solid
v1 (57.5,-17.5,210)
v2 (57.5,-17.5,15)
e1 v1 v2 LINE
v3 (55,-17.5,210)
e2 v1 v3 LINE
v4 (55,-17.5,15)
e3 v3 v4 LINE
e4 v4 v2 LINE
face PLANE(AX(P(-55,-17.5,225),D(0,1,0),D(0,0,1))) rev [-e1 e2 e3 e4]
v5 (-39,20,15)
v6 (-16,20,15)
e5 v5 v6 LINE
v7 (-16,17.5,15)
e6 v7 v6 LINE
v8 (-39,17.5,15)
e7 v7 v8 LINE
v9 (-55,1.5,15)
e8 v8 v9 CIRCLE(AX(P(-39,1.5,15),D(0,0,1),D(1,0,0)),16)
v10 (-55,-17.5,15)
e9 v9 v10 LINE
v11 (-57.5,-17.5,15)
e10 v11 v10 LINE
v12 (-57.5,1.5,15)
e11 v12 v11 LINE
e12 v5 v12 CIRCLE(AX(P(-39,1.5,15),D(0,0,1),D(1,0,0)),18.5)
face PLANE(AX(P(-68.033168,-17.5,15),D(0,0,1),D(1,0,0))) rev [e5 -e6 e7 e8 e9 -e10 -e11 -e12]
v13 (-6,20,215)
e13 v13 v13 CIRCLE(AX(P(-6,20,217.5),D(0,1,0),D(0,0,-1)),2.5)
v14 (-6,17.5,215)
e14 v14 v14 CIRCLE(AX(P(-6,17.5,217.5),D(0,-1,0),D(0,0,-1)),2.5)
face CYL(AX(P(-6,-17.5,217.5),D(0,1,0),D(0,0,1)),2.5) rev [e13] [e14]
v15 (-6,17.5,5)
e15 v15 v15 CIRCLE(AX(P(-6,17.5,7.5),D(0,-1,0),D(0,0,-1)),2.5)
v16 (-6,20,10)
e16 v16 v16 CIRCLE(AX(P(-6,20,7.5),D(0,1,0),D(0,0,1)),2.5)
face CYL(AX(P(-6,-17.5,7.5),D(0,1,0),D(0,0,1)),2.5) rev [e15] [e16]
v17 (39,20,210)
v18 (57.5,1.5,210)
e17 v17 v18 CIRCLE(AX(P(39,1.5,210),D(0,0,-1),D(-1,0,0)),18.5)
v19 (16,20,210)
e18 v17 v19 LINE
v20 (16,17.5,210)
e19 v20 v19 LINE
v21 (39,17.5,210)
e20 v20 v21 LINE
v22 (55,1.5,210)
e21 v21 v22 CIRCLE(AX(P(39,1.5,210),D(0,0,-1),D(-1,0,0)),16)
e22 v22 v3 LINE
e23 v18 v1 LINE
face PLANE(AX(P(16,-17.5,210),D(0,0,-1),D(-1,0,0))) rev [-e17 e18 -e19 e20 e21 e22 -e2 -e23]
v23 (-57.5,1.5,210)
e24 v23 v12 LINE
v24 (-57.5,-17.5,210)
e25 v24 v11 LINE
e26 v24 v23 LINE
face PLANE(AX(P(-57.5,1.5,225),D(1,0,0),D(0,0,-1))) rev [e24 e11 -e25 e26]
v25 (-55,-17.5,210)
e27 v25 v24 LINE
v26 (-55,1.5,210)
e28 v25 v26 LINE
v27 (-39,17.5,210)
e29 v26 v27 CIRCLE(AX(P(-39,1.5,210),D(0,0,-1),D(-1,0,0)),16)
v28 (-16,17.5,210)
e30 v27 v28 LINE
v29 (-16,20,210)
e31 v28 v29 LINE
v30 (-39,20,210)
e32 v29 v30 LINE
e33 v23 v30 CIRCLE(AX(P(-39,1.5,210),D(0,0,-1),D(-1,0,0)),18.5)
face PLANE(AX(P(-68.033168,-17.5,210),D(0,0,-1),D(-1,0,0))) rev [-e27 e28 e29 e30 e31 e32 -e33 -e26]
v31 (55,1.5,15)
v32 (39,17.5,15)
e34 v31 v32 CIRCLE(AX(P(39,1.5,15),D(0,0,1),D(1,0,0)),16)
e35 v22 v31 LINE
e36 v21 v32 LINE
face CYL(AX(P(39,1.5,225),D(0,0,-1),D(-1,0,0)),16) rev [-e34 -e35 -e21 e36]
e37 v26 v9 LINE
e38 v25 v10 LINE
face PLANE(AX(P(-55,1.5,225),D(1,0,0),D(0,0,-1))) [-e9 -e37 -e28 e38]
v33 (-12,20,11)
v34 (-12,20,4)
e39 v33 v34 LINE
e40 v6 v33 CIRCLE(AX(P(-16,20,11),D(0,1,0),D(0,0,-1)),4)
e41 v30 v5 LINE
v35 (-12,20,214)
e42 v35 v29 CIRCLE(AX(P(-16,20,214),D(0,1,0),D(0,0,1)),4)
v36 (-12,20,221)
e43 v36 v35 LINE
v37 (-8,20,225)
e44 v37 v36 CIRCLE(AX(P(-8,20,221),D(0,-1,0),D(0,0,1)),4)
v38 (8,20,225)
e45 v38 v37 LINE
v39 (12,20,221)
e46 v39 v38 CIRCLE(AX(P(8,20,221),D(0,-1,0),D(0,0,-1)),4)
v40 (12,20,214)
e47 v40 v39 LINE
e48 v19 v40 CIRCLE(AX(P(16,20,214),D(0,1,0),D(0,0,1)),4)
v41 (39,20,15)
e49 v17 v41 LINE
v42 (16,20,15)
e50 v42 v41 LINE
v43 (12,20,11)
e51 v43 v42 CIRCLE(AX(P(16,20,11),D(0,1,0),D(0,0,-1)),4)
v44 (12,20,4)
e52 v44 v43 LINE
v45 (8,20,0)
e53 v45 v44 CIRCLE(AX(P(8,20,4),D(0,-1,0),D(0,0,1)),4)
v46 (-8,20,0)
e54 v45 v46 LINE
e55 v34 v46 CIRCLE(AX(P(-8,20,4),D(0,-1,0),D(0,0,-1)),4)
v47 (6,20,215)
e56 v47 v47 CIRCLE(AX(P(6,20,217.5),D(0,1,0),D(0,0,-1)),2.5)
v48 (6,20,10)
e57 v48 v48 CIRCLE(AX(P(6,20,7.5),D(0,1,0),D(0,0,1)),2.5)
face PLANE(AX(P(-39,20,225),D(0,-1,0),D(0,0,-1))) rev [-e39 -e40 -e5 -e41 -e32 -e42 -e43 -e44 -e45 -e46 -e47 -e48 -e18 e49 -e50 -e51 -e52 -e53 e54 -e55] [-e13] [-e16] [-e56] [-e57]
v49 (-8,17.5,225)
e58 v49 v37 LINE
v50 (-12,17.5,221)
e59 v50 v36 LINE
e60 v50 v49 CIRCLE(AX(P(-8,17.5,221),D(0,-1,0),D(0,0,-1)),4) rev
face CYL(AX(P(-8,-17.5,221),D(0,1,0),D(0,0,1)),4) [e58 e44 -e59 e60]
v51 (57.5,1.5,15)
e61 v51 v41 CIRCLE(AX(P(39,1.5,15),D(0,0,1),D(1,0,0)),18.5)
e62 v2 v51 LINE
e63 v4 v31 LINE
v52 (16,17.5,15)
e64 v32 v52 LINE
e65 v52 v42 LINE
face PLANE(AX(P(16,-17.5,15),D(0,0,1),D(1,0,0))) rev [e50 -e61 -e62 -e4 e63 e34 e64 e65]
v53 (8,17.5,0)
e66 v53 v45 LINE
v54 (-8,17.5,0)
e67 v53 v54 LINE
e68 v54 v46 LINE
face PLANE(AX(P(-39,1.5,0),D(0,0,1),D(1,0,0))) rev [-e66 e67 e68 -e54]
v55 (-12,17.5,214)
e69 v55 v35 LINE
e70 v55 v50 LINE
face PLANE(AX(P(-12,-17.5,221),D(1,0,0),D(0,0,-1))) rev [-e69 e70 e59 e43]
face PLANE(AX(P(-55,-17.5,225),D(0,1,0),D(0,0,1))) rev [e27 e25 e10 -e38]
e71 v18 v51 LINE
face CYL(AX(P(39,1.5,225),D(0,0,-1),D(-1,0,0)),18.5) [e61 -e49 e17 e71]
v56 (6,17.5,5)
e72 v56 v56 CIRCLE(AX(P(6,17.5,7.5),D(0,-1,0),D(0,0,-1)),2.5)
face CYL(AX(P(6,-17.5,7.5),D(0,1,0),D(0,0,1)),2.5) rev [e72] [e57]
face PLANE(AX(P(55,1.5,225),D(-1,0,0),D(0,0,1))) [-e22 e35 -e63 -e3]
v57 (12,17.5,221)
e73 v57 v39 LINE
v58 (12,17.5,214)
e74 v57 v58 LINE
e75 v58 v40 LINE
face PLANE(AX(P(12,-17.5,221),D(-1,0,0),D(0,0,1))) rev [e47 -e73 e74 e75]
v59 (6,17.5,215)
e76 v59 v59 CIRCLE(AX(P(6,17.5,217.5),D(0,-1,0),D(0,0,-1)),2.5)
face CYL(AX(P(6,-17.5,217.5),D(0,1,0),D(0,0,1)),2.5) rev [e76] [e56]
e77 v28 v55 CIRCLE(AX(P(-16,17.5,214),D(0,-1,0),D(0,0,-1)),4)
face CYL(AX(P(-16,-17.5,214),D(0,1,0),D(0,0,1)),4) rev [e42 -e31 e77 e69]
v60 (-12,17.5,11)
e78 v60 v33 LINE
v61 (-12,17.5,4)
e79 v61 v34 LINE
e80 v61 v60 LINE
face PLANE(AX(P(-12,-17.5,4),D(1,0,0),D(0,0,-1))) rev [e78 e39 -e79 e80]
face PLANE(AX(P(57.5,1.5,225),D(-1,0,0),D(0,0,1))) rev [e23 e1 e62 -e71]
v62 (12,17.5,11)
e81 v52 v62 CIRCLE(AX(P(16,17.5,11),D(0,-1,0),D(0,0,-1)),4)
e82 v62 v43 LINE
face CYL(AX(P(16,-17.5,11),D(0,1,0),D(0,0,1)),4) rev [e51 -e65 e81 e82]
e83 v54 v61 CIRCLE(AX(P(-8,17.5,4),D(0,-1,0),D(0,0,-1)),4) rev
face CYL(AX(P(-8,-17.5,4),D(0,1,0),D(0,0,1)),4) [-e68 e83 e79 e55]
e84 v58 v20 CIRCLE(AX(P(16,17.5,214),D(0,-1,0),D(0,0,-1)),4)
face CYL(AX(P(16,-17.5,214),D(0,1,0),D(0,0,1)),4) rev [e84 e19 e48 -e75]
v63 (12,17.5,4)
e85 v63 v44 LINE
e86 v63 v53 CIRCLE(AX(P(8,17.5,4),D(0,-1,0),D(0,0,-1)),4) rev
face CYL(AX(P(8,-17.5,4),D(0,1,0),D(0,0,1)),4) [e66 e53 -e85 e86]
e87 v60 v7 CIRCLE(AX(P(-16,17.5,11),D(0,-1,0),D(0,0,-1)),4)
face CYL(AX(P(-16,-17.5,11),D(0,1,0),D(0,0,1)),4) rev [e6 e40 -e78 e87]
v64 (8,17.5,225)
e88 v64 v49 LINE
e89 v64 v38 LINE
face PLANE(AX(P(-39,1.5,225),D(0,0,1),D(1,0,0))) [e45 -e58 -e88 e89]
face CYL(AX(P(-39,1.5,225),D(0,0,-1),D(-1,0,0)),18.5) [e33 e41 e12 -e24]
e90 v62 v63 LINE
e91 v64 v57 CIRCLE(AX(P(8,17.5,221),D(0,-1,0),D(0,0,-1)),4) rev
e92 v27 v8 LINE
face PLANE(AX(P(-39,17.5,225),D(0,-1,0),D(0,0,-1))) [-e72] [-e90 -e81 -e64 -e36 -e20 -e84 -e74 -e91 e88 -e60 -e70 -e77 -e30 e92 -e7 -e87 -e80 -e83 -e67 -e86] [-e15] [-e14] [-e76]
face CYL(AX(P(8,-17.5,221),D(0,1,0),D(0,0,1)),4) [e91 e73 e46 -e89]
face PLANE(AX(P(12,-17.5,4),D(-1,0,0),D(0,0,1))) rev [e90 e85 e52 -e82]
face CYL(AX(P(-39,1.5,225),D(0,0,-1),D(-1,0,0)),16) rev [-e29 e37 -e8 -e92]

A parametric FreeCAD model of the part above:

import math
import FreeCAD as App
import Part
import Sketcher

V = App.Vector
Q = App.Units.Quantity


def faces_at(feature, points):
    """Names of the faces that lie closest to the given points."""
    faces = feature.Shape.Faces
    near = lambda p: min(range(len(faces)), key=lambda i: faces[i].distToShape(Part.Vertex(*p))[0])
    return sorted({f"Face{near(p) + 1}" for p in points})

doc = App.newDocument("Part")
body = doc.addObject("PartDesign::Body", "Body")

# Sketch on XY plane
sketch1 = doc.addObject("Sketcher::SketchObject", "Sketch")
body.addObject(sketch1)
sketch1.AttachmentSupport = (doc.XY_Plane, [""])
sketch1.MapMode = "FlatFace"
sketch1.addGeometry(Part.LineSegment(V(39, 18, 0), V(-39, 18, 0)), False)
sketch1.addGeometry(Part.ArcOfCircle(Part.Circle(V(-39, 2, 0), V(0, 0, 1), 16), math.radians(90), math.radians(180)), False)
sketch1.addGeometry(Part.LineSegment(V(-55, 2, 0), V(-55, -18, 0)), False)
sketch1.addGeometry(Part.LineSegment(V(-55, -18, 0), V(55, -18, 0)), False)
sketch1.addGeometry(Part.LineSegment(V(55, -18, 0), V(55, 2, 0)), False)
sketch1.addGeometry(Part.ArcOfCircle(Part.Circle(V(39, 2, 0), V(0, 0, 1), 16), math.radians(0), math.radians(90)), False)
sketch1.addConstraint(Sketcher.Constraint("Tangent", 0, 2, 1, 1))
sketch1.addConstraint(Sketcher.Constraint("Tangent", 1, 2, 2, 1))
sketch1.addConstraint(Sketcher.Constraint("Coincident", 2, 2, 3, 1))
sketch1.addConstraint(Sketcher.Constraint("Coincident", 3, 2, 4, 1))
sketch1.addConstraint(Sketcher.Constraint("Tangent", 4, 2, 5, 1))
sketch1.addConstraint(Sketcher.Constraint("Tangent", 5, 2, 0, 1))
sketch1.addConstraint(Sketcher.Constraint("Horizontal", 0))
sketch1.addConstraint(Sketcher.Constraint("Vertical", 2))
sketch1.addConstraint(Sketcher.Constraint("Horizontal", 3))
sketch1.addConstraint(Sketcher.Constraint("Vertical", 4))
sketch1.addConstraint(Sketcher.Constraint("Equal", 1, 5))
sketch1.addConstraint(Sketcher.Constraint("Radius", 1, Q("16 mm")))
sketch1.addConstraint(Sketcher.Constraint("DistanceX", 0, 2, 0, 1, Q("78 mm")))
sketch1.addConstraint(Sketcher.Constraint("DistanceY", 2, 2, 2, 1, Q("19 mm")))
sketch1.addConstraint(Sketcher.Constraint("DistanceX", 1, 3, -1, 1, Q("39 mm")))
sketch1.addConstraint(Sketcher.Constraint("DistanceY", -1, 1, 1, 3, Q("1.5 mm")))
pad1 = doc.addObject("PartDesign::Pad", "Pad")
body.addObject(pad1)
pad1.Profile = sketch1
pad1.Length = 225
doc.recompute()

thickness = doc.addObject("PartDesign::Thickness", "Thickness")
body.addObject(thickness)
thickness.Base = (pad1, faces_at(pad1, [(0, -17.5, 112.5), (0, 0, 0), (0, 0, 225)]))
thickness.Value = 2.5
thickness.Reversed = False
thickness.Join = "Intersection"

# Sketch on XZ plane
sketch2 = doc.addObject("Sketcher::SketchObject", "Sketch001")
body.addObject(sketch2)
sketch2.AttachmentSupport = (doc.XZ_Plane, [""])
sketch2.MapMode = "FlatFace"
sketch2.AttachmentOffset = App.Placement(V(0, 0, -20), App.Rotation())
sketch2.addGeometry(Part.Circle(V(-6, 7.5, 0), V(0, 0, 1), 2.5), False)
sketch2.addGeometry(Part.Circle(V(6, 7.5, 0), V(0, 0, 1), 2.5), False)
sketch2.addGeometry(Part.Circle(V(6, 217.5, 0), V(0, 0, 1), 2.5), False)
sketch2.addGeometry(Part.Circle(V(-6, 217.5, 0), V(0, 0, 1), 2.5), False)
sketch2.addGeometry(Part.LineSegment(V(-8, 0, 0), V(-68, 0, 0)), False)
sketch2.addGeometry(Part.LineSegment(V(-68, 0, 0), V(-68, 15, 0)), False)
sketch2.addGeometry(Part.LineSegment(V(-68, 15, 0), V(-16, 15, 0)), False)
sketch2.addGeometry(Part.ArcOfCircle(Part.Circle(V(-16, 11, 0), V(0, 0, 1), 4), math.radians(0), math.radians(90)), False)
sketch2.addGeometry(Part.LineSegment(V(-12, 11, 0), V(-12, 4, 0)), False)
sketch2.addGeometry(Part.ArcOfCircle(Part.Circle(V(-8, 4, 0), V(0, 0, 1), 4), math.radians(180), math.radians(270)), False)
sketch2.addGeometry(Part.LineSegment(V(68.3, 15, 0), V(68.3, 0, 0)), False)
sketch2.addGeometry(Part.LineSegment(V(68.3, 0, 0), V(8, 0, 0)), False)
sketch2.addGeometry(Part.ArcOfCircle(Part.Circle(V(8, 4, 0), V(0, 0, 1), 4), math.radians(-90), math.radians(0)), False)
sketch2.addGeometry(Part.LineSegment(V(12, 4, 0), V(12, 11, 0)), False)
sketch2.addGeometry(Part.ArcOfCircle(Part.Circle(V(16, 11, 0), V(0, 0, 1), 4), math.radians(90), math.radians(180)), False)
sketch2.addGeometry(Part.LineSegment(V(16, 15, 0), V(68.3, 15, 0)), False)
sketch2.addGeometry(Part.LineSegment(V(8, 225, 0), V(68.3, 225, 0)), False)
sketch2.addGeometry(Part.LineSegment(V(68.3, 225, 0), V(68.3, 210, 0)), False)
sketch2.addGeometry(Part.LineSegment(V(68.3, 210, 0), V(16, 210, 0)), False)
sketch2.addGeometry(Part.ArcOfCircle(Part.Circle(V(16, 214, 0), V(0, 0, 1), 4), math.radians(180), math.radians(270)), False)
sketch2.addGeometry(Part.LineSegment(V(12, 214, 0), V(12, 221, 0)), False)
sketch2.addGeometry(Part.ArcOfCircle(Part.Circle(V(8, 221, 0), V(0, 0, 1), 4), math.radians(0), math.radians(90)), False)
sketch2.addGeometry(Part.LineSegment(V(-16, 210, 0), V(-68, 210, 0)), False)
sketch2.addGeometry(Part.LineSegment(V(-68, 210, 0), V(-68, 225, 0)), False)
sketch2.addGeometry(Part.LineSegment(V(-68, 225, 0), V(-8, 225, 0)), False)
sketch2.addGeometry(Part.ArcOfCircle(Part.Circle(V(-8, 221, 0), V(0, 0, 1), 4), math.radians(90), math.radians(180)), False)
sketch2.addGeometry(Part.LineSegment(V(-12, 221, 0), V(-12, 214, 0)), False)
sketch2.addGeometry(Part.ArcOfCircle(Part.Circle(V(-16, 214, 0), V(0, 0, 1), 4), math.radians(-90), math.radians(0)), False)
sketch2.addConstraint(Sketcher.Constraint("Coincident", 4, 2, 5, 1))
sketch2.addConstraint(Sketcher.Constraint("Coincident", 5, 2, 6, 1))
sketch2.addConstraint(Sketcher.Constraint("Tangent", 6, 2, 7, 2))
sketch2.addConstraint(Sketcher.Constraint("Tangent", 7, 1, 8, 1))
sketch2.addConstraint(Sketcher.Constraint("Tangent", 8, 2, 9, 1))
sketch2.addConstraint(Sketcher.Constraint("Tangent", 9, 2, 4, 1))
sketch2.addConstraint(Sketcher.Constraint("Coincident", 10, 2, 11, 1))
sketch2.addConstraint(Sketcher.Constraint("Tangent", 11, 2, 12, 1))
sketch2.addConstraint(Sketcher.Constraint("Tangent", 12, 2, 13, 1))
sketch2.addConstraint(Sketcher.Constraint("Tangent", 13, 2, 14, 2))
sketch2.addConstraint(Sketcher.Constraint("Tangent", 14, 1, 15, 1))
sketch2.addConstraint(Sketcher.Constraint("Coincident", 15, 2, 10, 1))
sketch2.addConstraint(Sketcher.Constraint("Coincident", 16, 2, 17, 1))
sketch2.addConstraint(Sketcher.Constraint("Coincident", 17, 2, 18, 1))
sketch2.addConstraint(Sketcher.Constraint("Tangent", 18, 2, 19, 2))
sketch2.addConstraint(Sketcher.Constraint("Tangent", 19, 1, 20, 1))
sketch2.addConstraint(Sketcher.Constraint("Tangent", 20, 2, 21, 1))
sketch2.addConstraint(Sketcher.Constraint("Tangent", 21, 2, 16, 1))
sketch2.addConstraint(Sketcher.Constraint("Coincident", 22, 2, 23, 1))
sketch2.addConstraint(Sketcher.Constraint("Coincident", 23, 2, 24, 1))
sketch2.addConstraint(Sketcher.Constraint("Tangent", 24, 2, 25, 1))
sketch2.addConstraint(Sketcher.Constraint("Tangent", 25, 2, 26, 1))
sketch2.addConstraint(Sketcher.Constraint("Tangent", 26, 2, 27, 2))
sketch2.addConstraint(Sketcher.Constraint("Tangent", 27, 1, 22, 1))
sketch2.addConstraint(Sketcher.Constraint("Horizontal", 4))
sketch2.addConstraint(Sketcher.Constraint("Vertical", 5))
sketch2.addConstraint(Sketcher.Constraint("Horizontal", 6))
sketch2.addConstraint(Sketcher.Constraint("Vertical", 8))
sketch2.addConstraint(Sketcher.Constraint("Vertical", 10))
sketch2.addConstraint(Sketcher.Constraint("Horizontal", 11))
sketch2.addConstraint(Sketcher.Constraint("Vertical", 13))
sketch2.addConstraint(Sketcher.Constraint("Horizontal", 15))
sketch2.addConstraint(Sketcher.Constraint("Horizontal", 16))
sketch2.addConstraint(Sketcher.Constraint("Vertical", 17))
sketch2.addConstraint(Sketcher.Constraint("Horizontal", 18))
sketch2.addConstraint(Sketcher.Constraint("Vertical", 20))
sketch2.addConstraint(Sketcher.Constraint("Horizontal", 22))
sketch2.addConstraint(Sketcher.Constraint("Vertical", 23))
sketch2.addConstraint(Sketcher.Constraint("Horizontal", 24))
sketch2.addConstraint(Sketcher.Constraint("Vertical", 26))
sketch2.addConstraint(Sketcher.Constraint("Equal", 0, 1))
sketch2.addConstraint(Sketcher.Constraint("Equal", 1, 2))
sketch2.addConstraint(Sketcher.Constraint("Equal", 2, 3))
sketch2.addConstraint(Sketcher.Constraint("Equal", 7, 9))
sketch2.addConstraint(Sketcher.Constraint("Equal", 9, 12))
sketch2.addConstraint(Sketcher.Constraint("Equal", 12, 14))
sketch2.addConstraint(Sketcher.Constraint("Equal", 14, 19))
sketch2.addConstraint(Sketcher.Constraint("Equal", 19, 21))
sketch2.addConstraint(Sketcher.Constraint("Equal", 21, 25))
sketch2.addConstraint(Sketcher.Constraint("Equal", 25, 27))
sketch2.addConstraint(Sketcher.Constraint("Symmetric", 9, 2, 11, 2, -1, 1))
sketch2.addConstraint(Sketcher.Constraint("Symmetric", 0, 3, 1, 3, -2))
sketch2.addConstraint(Sketcher.Constraint("Symmetric", 2, 3, 3, 3, -2))
sketch2.addConstraint(Sketcher.Constraint("Symmetric", 21, 3, 25, 3, -2))
sketch2.addConstraint(Sketcher.Constraint("PointOnObject", 4, 2, -1))
sketch2.addConstraint(Sketcher.Constraint("Horizontal", 7, 3, 14, 3))
sketch2.addConstraint(Sketcher.Constraint("Horizontal", 19, 3, 27, 3))
sketch2.addConstraint(Sketcher.Constraint("Vertical", 1, 3, 2, 3))
sketch2.addConstraint(Sketcher.Constraint("Vertical", 14, 3, 19, 3))
sketch2.addConstraint(Sketcher.Constraint("Vertical", 15, 2, 16, 2))
sketch2.addConstraint(Sketcher.Constraint("Vertical", 5, 2, 22, 2))
sketch2.addConstraint(Sketcher.Constraint("Equal", 10, 17))
sketch2.addConstraint(Sketcher.Constraint("Diameter", 0, Q("5 mm")))
sketch2.addConstraint(Sketcher.Constraint("Radius", 7, Q("4 mm")))
sketch2.addConstraint(Sketcher.Constraint("DistanceY", 5, 1, 5, 2, Q("15 mm")))
sketch2.addConstraint(Sketcher.Constraint("DistanceX", 0, 3, -1, 1, Q("6 mm")))
sketch2.addConstraint(Sketcher.Constraint("DistanceX", 7, 3, -1, 1, Q("16 mm")))
sketch2.addConstraint(Sketcher.Constraint("DistanceY", -1, 1, 19, 3, Q("214 mm")))
sketch2.addConstraint(Sketcher.Constraint("DistanceY", 1, 3, 2, 3, Q("210 mm")))
sketch2.addConstraint(Sketcher.Constraint("DistanceY", -1, 1, 0, 3, Q("7.5 mm")))
sketch2.addConstraint(Sketcher.Constraint("DistanceX", 4, 2, 4, 1, Q("60.033168 mm")))
sketch2.addConstraint(Sketcher.Constraint("DistanceX", 11, 2, 11, 1, Q("60.316175 mm")))
pocket1 = doc.addObject("PartDesign::Pocket", "Pocket")
body.addObject(pocket1)
pocket1.Profile = sketch2
pocket1.Type = "ThroughAll"
pocket1.Reversed = True

doc.recompute()
